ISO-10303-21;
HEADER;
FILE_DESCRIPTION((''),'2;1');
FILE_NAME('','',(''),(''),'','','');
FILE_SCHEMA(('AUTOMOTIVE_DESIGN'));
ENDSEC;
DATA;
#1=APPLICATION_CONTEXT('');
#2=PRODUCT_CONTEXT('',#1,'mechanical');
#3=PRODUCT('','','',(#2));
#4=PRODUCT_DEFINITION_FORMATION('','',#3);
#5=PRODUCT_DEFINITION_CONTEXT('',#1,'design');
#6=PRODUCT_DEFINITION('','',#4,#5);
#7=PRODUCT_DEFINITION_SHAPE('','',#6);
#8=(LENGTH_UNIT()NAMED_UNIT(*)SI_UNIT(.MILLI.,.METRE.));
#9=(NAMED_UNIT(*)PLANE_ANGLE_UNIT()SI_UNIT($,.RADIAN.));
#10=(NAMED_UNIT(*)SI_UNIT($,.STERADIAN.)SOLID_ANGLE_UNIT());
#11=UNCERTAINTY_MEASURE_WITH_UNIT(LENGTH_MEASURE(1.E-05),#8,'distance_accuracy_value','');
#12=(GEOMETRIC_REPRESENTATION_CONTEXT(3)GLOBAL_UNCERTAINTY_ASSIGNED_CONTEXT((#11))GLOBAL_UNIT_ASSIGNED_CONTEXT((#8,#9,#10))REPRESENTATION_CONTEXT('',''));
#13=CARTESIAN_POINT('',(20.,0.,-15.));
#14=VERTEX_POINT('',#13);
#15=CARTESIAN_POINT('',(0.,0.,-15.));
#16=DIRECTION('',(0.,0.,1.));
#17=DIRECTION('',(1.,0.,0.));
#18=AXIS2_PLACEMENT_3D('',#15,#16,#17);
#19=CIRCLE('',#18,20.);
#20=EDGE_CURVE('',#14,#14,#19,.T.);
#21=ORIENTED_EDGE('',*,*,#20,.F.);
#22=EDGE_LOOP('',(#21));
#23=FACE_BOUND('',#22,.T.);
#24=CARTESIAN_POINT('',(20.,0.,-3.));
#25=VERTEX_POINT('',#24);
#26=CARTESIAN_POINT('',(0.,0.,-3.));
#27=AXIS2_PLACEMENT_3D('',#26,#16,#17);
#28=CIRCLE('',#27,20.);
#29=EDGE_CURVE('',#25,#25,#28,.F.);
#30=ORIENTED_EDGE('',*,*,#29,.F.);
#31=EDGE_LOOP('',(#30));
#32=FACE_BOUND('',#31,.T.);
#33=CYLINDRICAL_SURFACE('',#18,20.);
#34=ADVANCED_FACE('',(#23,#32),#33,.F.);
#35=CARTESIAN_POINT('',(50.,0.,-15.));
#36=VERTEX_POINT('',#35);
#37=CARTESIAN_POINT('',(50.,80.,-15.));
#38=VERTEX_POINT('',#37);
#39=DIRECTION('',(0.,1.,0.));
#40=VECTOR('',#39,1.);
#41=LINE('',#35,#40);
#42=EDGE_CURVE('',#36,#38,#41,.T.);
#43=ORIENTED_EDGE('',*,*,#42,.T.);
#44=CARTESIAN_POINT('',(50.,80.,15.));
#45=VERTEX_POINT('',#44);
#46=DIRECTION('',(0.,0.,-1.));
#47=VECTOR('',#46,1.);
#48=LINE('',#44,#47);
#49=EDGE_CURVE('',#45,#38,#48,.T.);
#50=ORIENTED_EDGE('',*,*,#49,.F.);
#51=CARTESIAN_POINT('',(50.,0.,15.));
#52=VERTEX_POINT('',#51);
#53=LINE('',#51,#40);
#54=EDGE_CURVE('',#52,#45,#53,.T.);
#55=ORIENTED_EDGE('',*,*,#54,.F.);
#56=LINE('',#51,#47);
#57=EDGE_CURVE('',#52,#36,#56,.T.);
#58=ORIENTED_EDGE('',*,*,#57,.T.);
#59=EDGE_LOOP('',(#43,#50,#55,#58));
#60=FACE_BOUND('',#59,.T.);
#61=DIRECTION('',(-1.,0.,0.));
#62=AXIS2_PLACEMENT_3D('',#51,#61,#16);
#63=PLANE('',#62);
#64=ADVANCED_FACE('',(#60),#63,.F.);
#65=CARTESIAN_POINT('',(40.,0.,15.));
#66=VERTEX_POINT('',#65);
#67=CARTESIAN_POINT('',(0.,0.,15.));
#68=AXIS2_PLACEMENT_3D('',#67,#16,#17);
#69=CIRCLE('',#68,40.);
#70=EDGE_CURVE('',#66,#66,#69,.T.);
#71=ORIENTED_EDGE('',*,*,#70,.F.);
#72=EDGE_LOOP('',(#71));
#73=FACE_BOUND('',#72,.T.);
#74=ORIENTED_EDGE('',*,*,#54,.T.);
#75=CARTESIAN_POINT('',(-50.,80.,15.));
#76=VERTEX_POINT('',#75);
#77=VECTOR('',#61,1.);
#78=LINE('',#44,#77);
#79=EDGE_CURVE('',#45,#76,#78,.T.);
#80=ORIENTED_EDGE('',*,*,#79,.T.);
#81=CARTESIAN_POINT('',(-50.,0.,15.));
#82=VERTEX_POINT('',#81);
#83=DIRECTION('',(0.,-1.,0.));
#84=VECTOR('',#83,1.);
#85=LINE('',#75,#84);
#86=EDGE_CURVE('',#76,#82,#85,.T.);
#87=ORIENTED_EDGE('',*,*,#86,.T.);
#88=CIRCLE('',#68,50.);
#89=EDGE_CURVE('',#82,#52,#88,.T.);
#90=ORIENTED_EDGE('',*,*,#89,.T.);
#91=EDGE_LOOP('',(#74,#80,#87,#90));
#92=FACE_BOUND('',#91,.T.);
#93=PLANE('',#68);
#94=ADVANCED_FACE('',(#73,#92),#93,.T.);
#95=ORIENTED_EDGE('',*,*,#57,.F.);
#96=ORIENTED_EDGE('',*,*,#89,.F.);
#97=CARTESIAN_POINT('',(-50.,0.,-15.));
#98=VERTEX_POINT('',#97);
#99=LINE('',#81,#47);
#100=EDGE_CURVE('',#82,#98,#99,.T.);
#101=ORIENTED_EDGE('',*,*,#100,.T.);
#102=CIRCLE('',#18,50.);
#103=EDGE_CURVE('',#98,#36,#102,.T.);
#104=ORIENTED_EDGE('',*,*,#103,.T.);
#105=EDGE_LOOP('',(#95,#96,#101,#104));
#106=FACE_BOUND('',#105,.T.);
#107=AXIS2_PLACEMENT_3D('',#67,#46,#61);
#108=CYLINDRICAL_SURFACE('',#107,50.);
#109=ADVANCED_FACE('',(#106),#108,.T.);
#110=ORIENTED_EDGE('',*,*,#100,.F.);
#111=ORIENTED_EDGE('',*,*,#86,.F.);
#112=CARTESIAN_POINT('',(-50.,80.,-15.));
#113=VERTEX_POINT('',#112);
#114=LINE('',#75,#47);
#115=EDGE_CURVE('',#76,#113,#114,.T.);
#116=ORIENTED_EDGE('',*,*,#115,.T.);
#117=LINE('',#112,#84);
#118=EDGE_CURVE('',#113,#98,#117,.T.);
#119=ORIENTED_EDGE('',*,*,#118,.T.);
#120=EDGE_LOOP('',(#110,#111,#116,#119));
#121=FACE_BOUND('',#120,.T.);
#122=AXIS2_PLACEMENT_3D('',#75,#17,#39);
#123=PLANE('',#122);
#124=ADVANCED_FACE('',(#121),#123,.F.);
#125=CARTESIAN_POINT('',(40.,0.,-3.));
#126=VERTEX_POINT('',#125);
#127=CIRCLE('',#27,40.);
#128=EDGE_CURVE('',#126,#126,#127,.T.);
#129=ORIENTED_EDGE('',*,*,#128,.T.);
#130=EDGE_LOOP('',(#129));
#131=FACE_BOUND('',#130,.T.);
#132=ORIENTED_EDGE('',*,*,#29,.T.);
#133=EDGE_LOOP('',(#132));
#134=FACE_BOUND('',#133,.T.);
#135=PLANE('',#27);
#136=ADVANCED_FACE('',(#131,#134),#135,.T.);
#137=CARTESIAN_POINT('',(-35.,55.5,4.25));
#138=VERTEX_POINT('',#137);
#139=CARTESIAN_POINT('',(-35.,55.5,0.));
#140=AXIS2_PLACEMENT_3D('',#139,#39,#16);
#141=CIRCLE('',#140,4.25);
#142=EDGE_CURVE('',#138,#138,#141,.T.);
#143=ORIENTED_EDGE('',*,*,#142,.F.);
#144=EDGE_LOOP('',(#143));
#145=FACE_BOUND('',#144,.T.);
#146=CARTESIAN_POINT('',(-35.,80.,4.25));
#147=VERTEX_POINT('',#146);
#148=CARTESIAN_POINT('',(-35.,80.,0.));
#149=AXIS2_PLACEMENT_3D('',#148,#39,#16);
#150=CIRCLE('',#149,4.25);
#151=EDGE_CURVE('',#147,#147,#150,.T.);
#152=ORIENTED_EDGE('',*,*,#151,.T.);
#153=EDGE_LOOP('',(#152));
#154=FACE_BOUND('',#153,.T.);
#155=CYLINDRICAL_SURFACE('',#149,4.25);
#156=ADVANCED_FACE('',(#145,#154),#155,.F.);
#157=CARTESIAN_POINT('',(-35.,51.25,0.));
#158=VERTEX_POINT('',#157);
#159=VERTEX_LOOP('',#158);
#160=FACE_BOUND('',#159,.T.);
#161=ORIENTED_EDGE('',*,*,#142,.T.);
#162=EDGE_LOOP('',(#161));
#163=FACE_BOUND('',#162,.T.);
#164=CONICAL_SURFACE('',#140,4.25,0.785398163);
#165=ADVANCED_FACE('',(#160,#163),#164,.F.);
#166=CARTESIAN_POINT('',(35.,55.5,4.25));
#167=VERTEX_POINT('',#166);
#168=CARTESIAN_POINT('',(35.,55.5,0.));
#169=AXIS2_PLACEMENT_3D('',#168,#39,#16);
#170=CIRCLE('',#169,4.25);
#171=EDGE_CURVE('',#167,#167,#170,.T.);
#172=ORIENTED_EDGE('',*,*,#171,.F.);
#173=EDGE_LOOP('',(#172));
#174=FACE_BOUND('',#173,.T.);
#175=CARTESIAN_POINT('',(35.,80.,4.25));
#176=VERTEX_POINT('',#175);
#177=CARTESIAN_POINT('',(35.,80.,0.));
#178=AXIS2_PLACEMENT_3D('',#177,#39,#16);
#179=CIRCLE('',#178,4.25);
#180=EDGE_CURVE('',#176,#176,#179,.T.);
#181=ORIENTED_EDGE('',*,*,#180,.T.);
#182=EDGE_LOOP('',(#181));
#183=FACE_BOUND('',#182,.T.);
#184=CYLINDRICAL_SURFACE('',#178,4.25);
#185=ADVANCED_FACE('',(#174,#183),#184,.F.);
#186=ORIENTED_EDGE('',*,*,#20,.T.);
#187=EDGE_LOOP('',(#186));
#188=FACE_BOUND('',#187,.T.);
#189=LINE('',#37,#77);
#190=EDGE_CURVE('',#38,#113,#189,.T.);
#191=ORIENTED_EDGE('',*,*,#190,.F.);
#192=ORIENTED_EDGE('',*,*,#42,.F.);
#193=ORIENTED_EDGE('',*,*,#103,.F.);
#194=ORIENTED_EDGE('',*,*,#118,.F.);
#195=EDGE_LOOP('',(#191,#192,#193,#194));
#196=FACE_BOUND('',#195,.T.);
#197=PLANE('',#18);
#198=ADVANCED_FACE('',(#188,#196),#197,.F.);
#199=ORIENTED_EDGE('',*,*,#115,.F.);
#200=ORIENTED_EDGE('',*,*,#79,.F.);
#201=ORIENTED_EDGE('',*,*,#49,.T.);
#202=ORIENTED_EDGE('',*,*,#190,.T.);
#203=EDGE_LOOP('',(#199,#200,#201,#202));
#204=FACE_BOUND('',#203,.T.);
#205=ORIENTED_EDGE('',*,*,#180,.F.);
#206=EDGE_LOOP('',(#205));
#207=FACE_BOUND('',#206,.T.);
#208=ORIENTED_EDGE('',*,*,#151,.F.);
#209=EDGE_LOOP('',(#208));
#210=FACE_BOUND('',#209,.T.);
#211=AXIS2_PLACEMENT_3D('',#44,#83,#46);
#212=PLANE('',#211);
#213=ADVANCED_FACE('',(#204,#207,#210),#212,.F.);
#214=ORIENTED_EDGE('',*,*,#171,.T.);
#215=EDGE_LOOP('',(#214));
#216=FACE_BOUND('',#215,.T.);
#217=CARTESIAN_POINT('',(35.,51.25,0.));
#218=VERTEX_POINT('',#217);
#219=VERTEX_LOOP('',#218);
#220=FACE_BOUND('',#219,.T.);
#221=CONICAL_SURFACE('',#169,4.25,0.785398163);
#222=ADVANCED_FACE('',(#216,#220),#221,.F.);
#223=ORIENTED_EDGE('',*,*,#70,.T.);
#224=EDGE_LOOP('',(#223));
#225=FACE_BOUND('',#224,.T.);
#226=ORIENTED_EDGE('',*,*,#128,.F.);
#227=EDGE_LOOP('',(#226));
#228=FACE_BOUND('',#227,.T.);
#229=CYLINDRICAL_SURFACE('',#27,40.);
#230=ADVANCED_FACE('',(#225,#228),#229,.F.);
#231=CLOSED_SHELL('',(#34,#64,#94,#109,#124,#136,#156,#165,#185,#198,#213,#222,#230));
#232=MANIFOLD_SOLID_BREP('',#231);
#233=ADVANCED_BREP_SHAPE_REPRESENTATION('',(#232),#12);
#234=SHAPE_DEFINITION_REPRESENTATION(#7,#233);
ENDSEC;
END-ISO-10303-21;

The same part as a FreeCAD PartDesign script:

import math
import FreeCAD as App
import Part
import Sketcher

V = App.Vector

doc = App.newDocument("Part")
body = doc.addObject("PartDesign::Body", "Body")

sketch1 = body.newObject("Sketcher::SketchObject", "Sketch")
sketch1.AttachmentSupport = (doc.getObject("XY_Plane"), [""])
sketch1.MapMode = "FlatFace"
sketch1.addGeometry(Part.LineSegment(V(-50, 80, 0), V(-50, 0, 0)), False)
sketch1.addGeometry(Part.ArcOfCircle(Part.Circle(V(0, 0, 0), V(0, 0, 1), 50), math.radians(180), math.radians(360)), False)
sketch1.addGeometry(Part.LineSegment(V(50, 0, 0), V(50, 80, 0)), False)
sketch1.addGeometry(Part.LineSegment(V(50, 80, 0), V(-50, 80, 0)), False)
sketch1.addConstraint(Sketcher.Constraint("Tangent", 0, 2, 1, 1))
sketch1.addConstraint(Sketcher.Constraint("Tangent", 1, 2, 2, 1))
sketch1.addConstraint(Sketcher.Constraint("Coincident", 2, 2, 3, 1))
sketch1.addConstraint(Sketcher.Constraint("Coincident", 3, 2, 0, 1))
sketch1.addConstraint(Sketcher.Constraint("Vertical", 0))
sketch1.addConstraint(Sketcher.Constraint("Vertical", 2))
sketch1.addConstraint(Sketcher.Constraint("Horizontal", 3))
sketch1.addConstraint(Sketcher.Constraint("Coincident", 1, 3, -1, 1))
sketch1.addConstraint(Sketcher.Constraint("Radius", 1, 50.0))
sketch1.addConstraint(Sketcher.Constraint("DistanceY", 0, 2, 0, 1, 80.0))
pad1 = body.newObject("PartDesign::Pad", "Pad")
pad1.Profile = sketch1
pad1.Length = 30
pad1.Midplane = True

sketch2 = body.newObject("Sketcher::SketchObject", "Sketch001")
sketch2.AttachmentSupport = (doc.getObject("XY_Plane"), [""])
sketch2.MapMode = "FlatFace"
sketch2.AttachmentOffset = App.Placement(V(0, 0, 15), App.Rotation())
sketch2.addGeometry(Part.Circle(V(0, 0, 0), V(0, 0, 1), 20), False)
sketch2.addConstraint(Sketcher.Constraint("Coincident", 0, 3, -1, 1))
sketch2.addConstraint(Sketcher.Constraint("Diameter", 0, 40.0))
pocket1 = body.newObject("PartDesign::Pocket", "Pocket")
pocket1.Profile = sketch2
pocket1.Type = "ThroughAll"

sketch3 = body.newObject("Sketcher::SketchObject", "Sketch002")
sketch3.AttachmentSupport = (doc.getObject("XY_Plane"), [""])
sketch3.MapMode = "FlatFace"
sketch3.AttachmentOffset = App.Placement(V(0, 0, 15), App.Rotation())
sketch3.addGeometry(Part.Circle(V(0, 0, 0), V(0, 0, 1), 40), False)
sketch3.addConstraint(Sketcher.Constraint("Coincident", 0, 3, -1, 1))
sketch3.addConstraint(Sketcher.Constraint("Diameter", 0, 80.0))
pocket2 = body.newObject("PartDesign::Pocket", "Pocket001")
pocket2.Profile = sketch3
pocket2.Length = 18

sketch4 = body.newObject("Sketcher::SketchObject", "Sketch003")
sketch4.AttachmentSupport = (doc.getObject("XZ_Plane"), [""])
sketch4.MapMode = "FlatFace"
sketch4.AttachmentOffset = App.Placement(V(0, 0, -80), App.Rotation())
sketch4.addGeometry(Part.Circle(V(-35, 0, 0), V(0, 0, 1), 4.2), False)
sketch4.addGeometry(Part.Circle(V(35, 0, 0), V(0, 0, 1), 4.2), False)
sketch4.addConstraint(Sketcher.Constraint("Equal", 0, 1))
sketch4.addConstraint(Sketcher.Constraint("Symmetric", 0, 3, 1, 3, -1, 1))
sketch4.addConstraint(Sketcher.Constraint("PointOnObject", 0, 3, -1))
sketch4.addConstraint(Sketcher.Constraint("Diameter", 0, 8.5))
sketch4.addConstraint(Sketcher.Constraint("DistanceX", 0, 3, -1, 1, 35.0))
doc.recompute()
hole = body.newObject("PartDesign::Hole", "Hole")
hole.Profile = sketch4
hole.ThreadType = "None"
hole.Diameter = 8.5
hole.DepthType = "Dimension"
hole.Depth = 24.5
hole.DrillPoint = "Angled"
hole.DrillPointAngle = 90
hole.Reversed = True

doc.recompute()
